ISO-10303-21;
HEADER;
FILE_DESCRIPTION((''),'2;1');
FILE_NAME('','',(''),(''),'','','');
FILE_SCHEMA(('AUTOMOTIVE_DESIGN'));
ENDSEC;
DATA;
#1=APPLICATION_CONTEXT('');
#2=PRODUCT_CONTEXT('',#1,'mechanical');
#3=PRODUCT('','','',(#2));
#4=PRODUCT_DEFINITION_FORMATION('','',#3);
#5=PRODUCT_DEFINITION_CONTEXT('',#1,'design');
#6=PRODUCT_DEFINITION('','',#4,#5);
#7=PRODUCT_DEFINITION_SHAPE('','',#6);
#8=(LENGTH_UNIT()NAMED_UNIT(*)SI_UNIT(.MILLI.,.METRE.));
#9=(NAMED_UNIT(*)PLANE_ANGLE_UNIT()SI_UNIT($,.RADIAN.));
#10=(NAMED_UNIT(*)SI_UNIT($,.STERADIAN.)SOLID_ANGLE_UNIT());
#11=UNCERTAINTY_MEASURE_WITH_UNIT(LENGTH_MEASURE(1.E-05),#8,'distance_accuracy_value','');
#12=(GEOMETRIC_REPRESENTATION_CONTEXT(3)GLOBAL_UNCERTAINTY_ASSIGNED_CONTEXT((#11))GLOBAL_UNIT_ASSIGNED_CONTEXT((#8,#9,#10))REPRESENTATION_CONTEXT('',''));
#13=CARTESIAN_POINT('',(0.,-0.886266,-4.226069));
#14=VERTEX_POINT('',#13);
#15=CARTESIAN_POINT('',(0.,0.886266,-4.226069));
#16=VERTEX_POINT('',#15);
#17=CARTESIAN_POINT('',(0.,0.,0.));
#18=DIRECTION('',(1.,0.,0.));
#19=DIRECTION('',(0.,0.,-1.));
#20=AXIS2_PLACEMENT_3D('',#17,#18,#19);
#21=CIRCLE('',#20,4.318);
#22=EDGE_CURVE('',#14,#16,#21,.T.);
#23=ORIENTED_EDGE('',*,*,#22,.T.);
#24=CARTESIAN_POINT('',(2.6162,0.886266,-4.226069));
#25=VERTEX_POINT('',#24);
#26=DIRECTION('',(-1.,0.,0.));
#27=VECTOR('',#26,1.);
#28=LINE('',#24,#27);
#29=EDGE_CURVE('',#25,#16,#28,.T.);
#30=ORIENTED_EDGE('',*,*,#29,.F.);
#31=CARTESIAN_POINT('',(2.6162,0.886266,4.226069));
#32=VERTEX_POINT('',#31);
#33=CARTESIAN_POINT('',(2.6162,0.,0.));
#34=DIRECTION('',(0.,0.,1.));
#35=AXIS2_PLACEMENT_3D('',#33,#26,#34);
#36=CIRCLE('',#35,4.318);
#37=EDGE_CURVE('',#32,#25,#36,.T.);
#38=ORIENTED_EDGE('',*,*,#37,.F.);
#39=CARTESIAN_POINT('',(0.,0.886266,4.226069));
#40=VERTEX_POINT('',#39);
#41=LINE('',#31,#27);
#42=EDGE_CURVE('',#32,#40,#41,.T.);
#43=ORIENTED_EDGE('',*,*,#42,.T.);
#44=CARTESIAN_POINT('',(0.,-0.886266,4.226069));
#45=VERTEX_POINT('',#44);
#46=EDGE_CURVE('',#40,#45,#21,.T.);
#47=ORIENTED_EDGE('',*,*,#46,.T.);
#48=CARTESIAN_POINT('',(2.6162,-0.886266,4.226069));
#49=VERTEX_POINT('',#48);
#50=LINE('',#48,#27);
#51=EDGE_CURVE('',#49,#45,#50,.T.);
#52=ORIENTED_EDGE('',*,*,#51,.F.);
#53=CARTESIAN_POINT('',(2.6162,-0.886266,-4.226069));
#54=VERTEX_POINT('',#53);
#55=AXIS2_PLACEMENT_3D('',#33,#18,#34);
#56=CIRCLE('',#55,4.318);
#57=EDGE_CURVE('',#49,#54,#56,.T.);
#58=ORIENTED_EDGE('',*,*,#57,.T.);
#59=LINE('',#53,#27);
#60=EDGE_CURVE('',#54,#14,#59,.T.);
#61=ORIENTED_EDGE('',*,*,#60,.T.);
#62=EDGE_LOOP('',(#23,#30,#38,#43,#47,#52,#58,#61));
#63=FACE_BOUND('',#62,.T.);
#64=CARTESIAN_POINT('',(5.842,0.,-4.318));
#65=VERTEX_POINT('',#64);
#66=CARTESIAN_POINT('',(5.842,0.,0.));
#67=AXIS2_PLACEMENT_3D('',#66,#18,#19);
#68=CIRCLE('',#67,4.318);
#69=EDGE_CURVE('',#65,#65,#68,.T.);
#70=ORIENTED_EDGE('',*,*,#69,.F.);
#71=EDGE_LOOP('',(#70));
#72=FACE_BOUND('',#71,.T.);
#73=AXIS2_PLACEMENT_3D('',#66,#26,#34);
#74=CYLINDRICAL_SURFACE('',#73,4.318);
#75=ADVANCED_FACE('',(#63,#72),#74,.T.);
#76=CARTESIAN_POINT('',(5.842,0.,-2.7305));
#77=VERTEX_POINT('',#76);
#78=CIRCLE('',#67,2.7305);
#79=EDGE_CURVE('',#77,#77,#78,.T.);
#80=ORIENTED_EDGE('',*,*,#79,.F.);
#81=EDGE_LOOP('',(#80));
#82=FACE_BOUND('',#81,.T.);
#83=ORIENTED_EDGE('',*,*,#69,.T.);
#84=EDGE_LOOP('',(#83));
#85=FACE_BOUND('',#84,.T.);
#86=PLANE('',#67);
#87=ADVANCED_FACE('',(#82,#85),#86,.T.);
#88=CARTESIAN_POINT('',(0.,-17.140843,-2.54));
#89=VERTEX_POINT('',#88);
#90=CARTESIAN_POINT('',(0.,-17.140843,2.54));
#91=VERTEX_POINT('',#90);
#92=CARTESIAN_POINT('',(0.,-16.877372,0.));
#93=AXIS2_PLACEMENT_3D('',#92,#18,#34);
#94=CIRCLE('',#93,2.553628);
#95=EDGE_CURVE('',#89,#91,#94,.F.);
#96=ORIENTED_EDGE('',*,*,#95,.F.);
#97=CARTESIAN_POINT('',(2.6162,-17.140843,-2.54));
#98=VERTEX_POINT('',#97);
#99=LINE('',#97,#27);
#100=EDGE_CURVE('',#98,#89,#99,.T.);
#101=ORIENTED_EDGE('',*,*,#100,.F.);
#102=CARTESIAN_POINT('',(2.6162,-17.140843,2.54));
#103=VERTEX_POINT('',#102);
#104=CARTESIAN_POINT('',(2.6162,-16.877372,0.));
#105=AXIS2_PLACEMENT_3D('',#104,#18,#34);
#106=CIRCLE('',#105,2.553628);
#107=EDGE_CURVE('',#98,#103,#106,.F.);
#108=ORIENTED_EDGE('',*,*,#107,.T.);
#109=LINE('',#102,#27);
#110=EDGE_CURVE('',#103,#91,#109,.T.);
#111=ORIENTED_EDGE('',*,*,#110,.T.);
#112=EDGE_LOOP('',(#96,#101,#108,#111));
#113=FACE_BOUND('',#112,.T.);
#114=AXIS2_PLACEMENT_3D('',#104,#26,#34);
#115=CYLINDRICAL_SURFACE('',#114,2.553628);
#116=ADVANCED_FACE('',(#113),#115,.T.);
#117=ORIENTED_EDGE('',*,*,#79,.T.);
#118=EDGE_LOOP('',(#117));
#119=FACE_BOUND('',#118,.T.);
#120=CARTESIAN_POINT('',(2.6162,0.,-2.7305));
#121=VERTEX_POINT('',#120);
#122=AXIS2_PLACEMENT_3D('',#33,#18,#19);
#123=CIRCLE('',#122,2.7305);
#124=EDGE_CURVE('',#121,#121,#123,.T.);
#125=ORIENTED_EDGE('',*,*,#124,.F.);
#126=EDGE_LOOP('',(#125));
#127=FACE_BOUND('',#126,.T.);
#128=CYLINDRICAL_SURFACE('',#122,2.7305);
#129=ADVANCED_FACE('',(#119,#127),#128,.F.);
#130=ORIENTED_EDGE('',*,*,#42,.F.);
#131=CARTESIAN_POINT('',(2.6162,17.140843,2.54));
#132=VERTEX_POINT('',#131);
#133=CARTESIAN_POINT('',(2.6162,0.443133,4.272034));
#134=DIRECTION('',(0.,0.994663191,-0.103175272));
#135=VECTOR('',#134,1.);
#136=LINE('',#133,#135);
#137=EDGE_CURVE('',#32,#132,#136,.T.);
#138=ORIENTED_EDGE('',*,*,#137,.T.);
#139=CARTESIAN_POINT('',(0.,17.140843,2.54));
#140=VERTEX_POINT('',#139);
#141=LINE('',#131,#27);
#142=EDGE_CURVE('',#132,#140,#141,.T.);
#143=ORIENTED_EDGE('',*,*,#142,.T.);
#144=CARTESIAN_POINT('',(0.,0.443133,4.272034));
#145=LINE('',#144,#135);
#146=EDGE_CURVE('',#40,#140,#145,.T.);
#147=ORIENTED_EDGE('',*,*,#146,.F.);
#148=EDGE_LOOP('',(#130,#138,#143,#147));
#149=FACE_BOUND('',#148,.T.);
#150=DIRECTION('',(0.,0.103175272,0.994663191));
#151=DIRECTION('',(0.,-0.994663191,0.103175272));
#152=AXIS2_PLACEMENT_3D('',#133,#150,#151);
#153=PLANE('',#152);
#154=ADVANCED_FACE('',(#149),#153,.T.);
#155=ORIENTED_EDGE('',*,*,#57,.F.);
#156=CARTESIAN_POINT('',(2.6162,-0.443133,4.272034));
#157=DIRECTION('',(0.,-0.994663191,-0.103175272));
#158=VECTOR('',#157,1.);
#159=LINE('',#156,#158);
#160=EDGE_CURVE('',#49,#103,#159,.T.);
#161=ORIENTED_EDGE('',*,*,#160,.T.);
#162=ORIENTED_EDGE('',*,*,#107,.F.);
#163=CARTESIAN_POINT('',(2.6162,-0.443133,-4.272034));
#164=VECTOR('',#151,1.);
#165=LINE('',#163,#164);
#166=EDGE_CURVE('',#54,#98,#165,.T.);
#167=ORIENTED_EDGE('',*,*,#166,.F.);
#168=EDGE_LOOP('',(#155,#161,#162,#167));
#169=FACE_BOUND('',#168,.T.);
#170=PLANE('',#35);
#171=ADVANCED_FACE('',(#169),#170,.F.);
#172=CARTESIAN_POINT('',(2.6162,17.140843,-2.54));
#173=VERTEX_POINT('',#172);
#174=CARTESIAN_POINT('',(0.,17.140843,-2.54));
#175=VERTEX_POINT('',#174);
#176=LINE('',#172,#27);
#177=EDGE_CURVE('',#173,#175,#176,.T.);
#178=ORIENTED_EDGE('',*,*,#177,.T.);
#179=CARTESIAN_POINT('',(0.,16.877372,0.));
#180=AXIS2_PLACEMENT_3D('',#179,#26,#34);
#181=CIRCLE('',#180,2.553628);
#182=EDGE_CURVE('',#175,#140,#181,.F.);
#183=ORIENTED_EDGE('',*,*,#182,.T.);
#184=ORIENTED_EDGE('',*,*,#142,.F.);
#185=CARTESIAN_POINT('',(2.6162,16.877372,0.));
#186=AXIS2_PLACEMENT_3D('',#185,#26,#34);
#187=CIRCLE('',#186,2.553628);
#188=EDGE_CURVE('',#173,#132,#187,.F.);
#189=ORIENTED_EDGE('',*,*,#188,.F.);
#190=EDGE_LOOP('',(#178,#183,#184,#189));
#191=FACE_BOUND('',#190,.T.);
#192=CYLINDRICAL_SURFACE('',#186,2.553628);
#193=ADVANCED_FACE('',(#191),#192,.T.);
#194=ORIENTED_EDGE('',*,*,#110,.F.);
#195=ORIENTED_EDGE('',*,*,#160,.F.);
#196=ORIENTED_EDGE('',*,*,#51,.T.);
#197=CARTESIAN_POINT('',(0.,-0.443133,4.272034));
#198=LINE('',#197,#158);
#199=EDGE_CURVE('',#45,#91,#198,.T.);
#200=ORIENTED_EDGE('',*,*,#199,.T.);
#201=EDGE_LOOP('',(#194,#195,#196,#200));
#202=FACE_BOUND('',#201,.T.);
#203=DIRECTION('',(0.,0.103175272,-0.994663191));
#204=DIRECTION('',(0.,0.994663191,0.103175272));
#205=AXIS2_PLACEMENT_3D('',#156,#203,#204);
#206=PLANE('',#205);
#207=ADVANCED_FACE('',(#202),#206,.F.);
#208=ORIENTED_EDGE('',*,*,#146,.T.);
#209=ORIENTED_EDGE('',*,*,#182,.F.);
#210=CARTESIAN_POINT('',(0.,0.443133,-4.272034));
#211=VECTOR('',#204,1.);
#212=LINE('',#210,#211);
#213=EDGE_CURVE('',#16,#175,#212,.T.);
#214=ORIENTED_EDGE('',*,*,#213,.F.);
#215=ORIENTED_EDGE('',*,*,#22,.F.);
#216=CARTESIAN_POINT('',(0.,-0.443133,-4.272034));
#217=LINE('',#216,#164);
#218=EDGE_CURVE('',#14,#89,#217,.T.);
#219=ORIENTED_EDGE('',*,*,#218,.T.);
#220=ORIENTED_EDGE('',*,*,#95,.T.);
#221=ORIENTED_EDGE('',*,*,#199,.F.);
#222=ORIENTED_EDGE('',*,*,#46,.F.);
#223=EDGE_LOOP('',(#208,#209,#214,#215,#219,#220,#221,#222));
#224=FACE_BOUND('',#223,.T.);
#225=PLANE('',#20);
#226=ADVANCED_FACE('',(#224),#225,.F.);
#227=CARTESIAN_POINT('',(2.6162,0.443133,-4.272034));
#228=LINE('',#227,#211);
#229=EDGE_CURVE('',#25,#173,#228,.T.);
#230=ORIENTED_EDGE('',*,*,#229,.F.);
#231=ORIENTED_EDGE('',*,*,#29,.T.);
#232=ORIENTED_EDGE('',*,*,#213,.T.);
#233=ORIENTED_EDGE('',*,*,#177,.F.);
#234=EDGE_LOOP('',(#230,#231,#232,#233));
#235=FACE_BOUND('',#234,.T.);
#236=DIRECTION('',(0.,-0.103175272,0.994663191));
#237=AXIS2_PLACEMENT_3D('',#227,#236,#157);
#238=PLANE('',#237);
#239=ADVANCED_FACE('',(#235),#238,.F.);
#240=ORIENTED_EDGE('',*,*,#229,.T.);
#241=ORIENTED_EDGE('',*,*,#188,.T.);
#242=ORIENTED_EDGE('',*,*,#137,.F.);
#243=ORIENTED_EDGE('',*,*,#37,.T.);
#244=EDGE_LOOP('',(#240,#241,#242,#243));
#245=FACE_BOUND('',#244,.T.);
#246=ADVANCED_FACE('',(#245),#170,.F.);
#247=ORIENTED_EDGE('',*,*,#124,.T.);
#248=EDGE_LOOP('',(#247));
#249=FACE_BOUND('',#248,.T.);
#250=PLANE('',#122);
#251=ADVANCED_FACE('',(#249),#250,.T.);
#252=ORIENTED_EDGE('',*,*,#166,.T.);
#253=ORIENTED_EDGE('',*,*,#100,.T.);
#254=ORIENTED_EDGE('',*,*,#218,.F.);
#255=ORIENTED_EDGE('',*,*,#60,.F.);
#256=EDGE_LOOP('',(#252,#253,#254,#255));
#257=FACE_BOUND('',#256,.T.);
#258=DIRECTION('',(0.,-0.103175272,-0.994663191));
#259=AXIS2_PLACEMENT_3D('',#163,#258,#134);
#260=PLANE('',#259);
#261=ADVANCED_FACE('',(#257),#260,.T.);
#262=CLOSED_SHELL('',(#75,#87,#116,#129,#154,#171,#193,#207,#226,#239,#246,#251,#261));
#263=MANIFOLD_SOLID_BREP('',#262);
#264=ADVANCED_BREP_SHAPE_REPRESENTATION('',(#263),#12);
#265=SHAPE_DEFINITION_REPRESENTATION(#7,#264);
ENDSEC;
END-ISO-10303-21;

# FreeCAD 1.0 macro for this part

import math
import FreeCAD as App
import Part
import Sketcher

V = App.Vector
Q = App.Units.Quantity

doc = App.newDocument("Part")
params = doc.addObject("Spreadsheet::Sheet", "Params")
for row, (alias, value) in enumerate([
    ("sketch1_diameter", "0.34 in"),
    ("pad1_length", "0.23 in"),
    ("sketch2_radius", "0.17 in"),
    ("pad2_length", "0.103 in"),
    ("sketch3_diameter", "0.215 in"),
    ("pocket1_length", "0.127 in"),
], start=1):
    params.set(f"A{row}", alias)
    params.set(f"B{row}", "=" + value)
    params.setAlias(f"B{row}", alias)

body = doc.addObject("PartDesign::Body", "Body")

# Sketch on YZ plane
sketch1 = body.newObject("Sketcher::SketchObject", "Sketch")
sketch1.AttachmentSupport = (doc.getObject("YZ_Plane"), [""])
sketch1.MapMode = "FlatFace"
sketch1.addGeometry(Part.Circle(V(0, 0, 0), V(0, 0, 1), 4.3), False)
sketch1.addConstraint(Sketcher.Constraint("Coincident", 0, 3, -1, 1))
sketch1.addConstraint(Sketcher.Constraint("Diameter", 0, Q("0.34 in")))
sketch1.setExpression("Constraints[1]", "Params.sketch1_diameter")
pad1 = body.newObject("PartDesign::Pad", "Pad")
pad1.Profile = sketch1
pad1.setExpression("Length", "Params.pad1_length")

# Sketch on YZ plane
sketch2 = body.newObject("Sketcher::SketchObject", "Sketch001")
sketch2.AttachmentSupport = (doc.getObject("YZ_Plane"), [""])
sketch2.MapMode = "FlatFace"
sketch2.addGeometry(Part.LineSegment(V(17.1, -2.5, 0), V(0.9, -4.2, 0)), False)
sketch2.addGeometry(Part.ArcOfCircle(Part.Circle(V(0, 0, 0), V(0, 0, 1), 4.3), math.radians(-78), math.radians(78)), False)
sketch2.addGeometry(Part.LineSegment(V(0.9, 4.2, 0), V(17.1, 2.5, 0)), False)
sketch2.addGeometry(Part.ArcOfCircle(Part.Circle(V(16.9, 0, 0), V(0, 0, 1), 2.6), math.radians(-84), math.radians(84)), False)
sketch2.addConstraint(Sketcher.Constraint("Coincident", 0, 2, 1, 1))
sketch2.addConstraint(Sketcher.Constraint("Coincident", 1, 2, 2, 1))
sketch2.addConstraint(Sketcher.Constraint("Tangent", 2, 2, 3, 2))
sketch2.addConstraint(Sketcher.Constraint("Tangent", 3, 1, 0, 1))
sketch2.addConstraint(Sketcher.Constraint("Coincident", 1, 3, -1, 1))
sketch2.addConstraint(Sketcher.Constraint("Symmetric", 2, 2, 3, 1, -1))
sketch2.addConstraint(Sketcher.Constraint("Radius", 1, Q("0.17 in")))
sketch2.addConstraint(Sketcher.Constraint("DistanceY", -1, 1, 2, 2, Q("0.1 in")))
sketch2.addConstraint(Sketcher.Constraint("Distance", 0, 16.34179))
sketch2.addConstraint(Sketcher.Constraint("DistanceX", -1, 1, 3, 3, 16.877372))
sketch2.setExpression("Constraints[6]", "Params.sketch2_radius")
pad2 = body.newObject("PartDesign::Pad", "Pad001")
pad2.Profile = sketch2
pad2.setExpression("Length", "Params.pad2_length")
doc.recompute()

mirrored = body.newObject("PartDesign::Mirrored", "Mirrored")
mirrored.Originals = [pad2]
mirrored.MirrorPlane = (doc.getObject("XZ_Plane"), [""])
body.Tip = mirrored

# Sketch on YZ plane
sketch3 = body.newObject("Sketcher::SketchObject", "Sketch002")
sketch3.AttachmentSupport = (doc.getObject("YZ_Plane"), [""])
sketch3.MapMode = "FlatFace"
sketch3.AttachmentOffset = App.Placement(V(0, 0, 0.23 * 25.4), App.Rotation())
sketch3.addGeometry(Part.Circle(V(0, 0, 0), V(0, 0, 1), 2.7), False)
sketch3.addConstraint(Sketcher.Constraint("Coincident", 0, 3, -1, 1))
sketch3.addConstraint(Sketcher.Constraint("Diameter", 0, Q("0.215 in")))
sketch3.setExpression("Constraints[1]", "Params.sketch3_diameter")
pocket1 = body.newObject("PartDesign::Pocket", "Pocket")
pocket1.Profile = sketch3
pocket1.setExpression("Length", "Params.pocket1_length")

doc.recompute()
